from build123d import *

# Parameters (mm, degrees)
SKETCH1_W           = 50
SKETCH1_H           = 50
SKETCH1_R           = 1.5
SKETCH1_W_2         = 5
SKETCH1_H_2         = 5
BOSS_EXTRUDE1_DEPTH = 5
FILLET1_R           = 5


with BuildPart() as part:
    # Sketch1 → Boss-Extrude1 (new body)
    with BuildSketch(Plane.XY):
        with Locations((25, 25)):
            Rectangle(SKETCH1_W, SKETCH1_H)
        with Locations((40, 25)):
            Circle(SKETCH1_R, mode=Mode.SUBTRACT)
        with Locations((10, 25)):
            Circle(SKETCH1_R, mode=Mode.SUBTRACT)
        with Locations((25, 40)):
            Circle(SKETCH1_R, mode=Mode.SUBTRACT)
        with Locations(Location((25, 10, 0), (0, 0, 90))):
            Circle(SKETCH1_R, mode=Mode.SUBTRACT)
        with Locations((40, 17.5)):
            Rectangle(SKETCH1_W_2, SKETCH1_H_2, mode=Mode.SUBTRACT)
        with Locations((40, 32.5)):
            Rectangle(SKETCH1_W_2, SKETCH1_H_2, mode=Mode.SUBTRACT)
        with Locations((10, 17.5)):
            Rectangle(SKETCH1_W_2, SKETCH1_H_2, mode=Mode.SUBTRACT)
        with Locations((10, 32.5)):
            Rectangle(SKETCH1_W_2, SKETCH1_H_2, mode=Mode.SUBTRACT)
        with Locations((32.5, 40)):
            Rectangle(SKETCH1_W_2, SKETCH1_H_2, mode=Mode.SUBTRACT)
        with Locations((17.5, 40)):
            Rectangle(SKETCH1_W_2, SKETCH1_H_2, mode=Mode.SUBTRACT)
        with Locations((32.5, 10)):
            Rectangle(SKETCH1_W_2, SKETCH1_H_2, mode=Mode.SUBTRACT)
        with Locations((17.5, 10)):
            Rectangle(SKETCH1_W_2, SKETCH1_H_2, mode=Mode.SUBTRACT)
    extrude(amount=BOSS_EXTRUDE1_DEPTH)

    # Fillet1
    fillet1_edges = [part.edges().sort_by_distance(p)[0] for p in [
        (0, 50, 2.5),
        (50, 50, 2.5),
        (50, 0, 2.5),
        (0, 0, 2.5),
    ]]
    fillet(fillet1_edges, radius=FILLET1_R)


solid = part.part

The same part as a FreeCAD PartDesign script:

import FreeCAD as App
import Part
import Sketcher

V = App.Vector
Q = App.Units.Quantity


def edges_at(feature, points):
    """Names of the edges that pass closest to the given points."""
    edges = feature.Shape.Edges
    near = lambda p: min(range(len(edges)), key=lambda i: edges[i].distToShape(Part.Vertex(*p))[0])
    return sorted({f"Edge{near(p) + 1}" for p in points})

doc = App.newDocument("Part")
params = doc.addObject("Spreadsheet::Sheet", "Params")
for row, (alias, value) in enumerate([
    ("sketch1_diameter", "3 mm"),
    ("sketch1_width", "50 mm"),
    ("sketch1_width2", "5 mm"),
    ("pad1_length", "5 mm"),
    ("fillet_radius", "5 mm"),
], start=1):
    params.set(f"A{row}", alias)
    params.set(f"B{row}", "=" + value)
    params.setAlias(f"B{row}", alias)

body = doc.addObject("PartDesign::Body", "Body")

# Sketch on XY plane
sketch1 = body.newObject("Sketcher::SketchObject", "Sketch")
sketch1.AttachmentSupport = (doc.getObject("XY_Plane"), [""])
sketch1.MapMode = "FlatFace"
sketch1.addGeometry([
    Part.LineSegment(V(0, 50, 0), V(0, 0, 0)),  # 0
    Part.LineSegment(V(0, 0, 0), V(50, 0, 0)),  # 1
    Part.LineSegment(V(50, 0, 0), V(50, 50, 0)),  # 2
    Part.LineSegment(V(50, 50, 0), V(0, 50, 0)),  # 3
    Part.LineSegment(V(20, 7.5, 0), V(15, 7.5, 0)),  # 4
    Part.LineSegment(V(15, 7.5, 0), V(15, 12.5, 0)),  # 5
    Part.LineSegment(V(15, 12.5, 0), V(20, 12.5, 0)),  # 6
    Part.LineSegment(V(20, 12.5, 0), V(20, 7.5, 0)),  # 7
    Part.LineSegment(V(12.5, 15, 0), V(7.5, 15, 0)),  # 8
    Part.LineSegment(V(7.5, 15, 0), V(7.5, 20, 0)),  # 9
    Part.LineSegment(V(7.5, 20, 0), V(12.5, 20, 0)),  # 10
    Part.LineSegment(V(12.5, 20, 0), V(12.5, 15, 0)),  # 11
    Part.Circle(V(25, 10, 0), V(0, 0, 1), 1.5),  # 12
    Part.LineSegment(V(35, 7.5, 0), V(30, 7.5, 0)),  # 13
    Part.LineSegment(V(30, 7.5, 0), V(30, 12.5, 0)),  # 14
    Part.LineSegment(V(30, 12.5, 0), V(35, 12.5, 0)),  # 15
    Part.LineSegment(V(35, 12.5, 0), V(35, 7.5, 0)),  # 16
    Part.LineSegment(V(42.5, 15, 0), V(37.5, 15, 0)),  # 17
    Part.LineSegment(V(37.5, 15, 0), V(37.5, 20, 0)),  # 18
    Part.LineSegment(V(37.5, 20, 0), V(42.5, 20, 0)),  # 19
    Part.LineSegment(V(42.5, 20, 0), V(42.5, 15, 0)),  # 20
    Part.Circle(V(10, 25, 0), V(0, 0, 1), 1.5),  # 21
    Part.LineSegment(V(12.5, 30, 0), V(7.5, 30, 0)),  # 22
    Part.LineSegment(V(7.5, 30, 0), V(7.5, 35, 0)),  # 23
    Part.LineSegment(V(7.5, 35, 0), V(12.5, 35, 0)),  # 24
    Part.LineSegment(V(12.5, 35, 0), V(12.5, 30, 0)),  # 25
    Part.LineSegment(V(20, 37.5, 0), V(15, 37.5, 0)),  # 26
    Part.LineSegment(V(15, 37.5, 0), V(15, 42.5, 0)),  # 27
    Part.LineSegment(V(15, 42.5, 0), V(20, 42.5, 0)),  # 28
    Part.LineSegment(V(20, 42.5, 0), V(20, 37.5, 0)),  # 29
    Part.Circle(V(40, 25, 0), V(0, 0, 1), 1.5),  # 30
    Part.LineSegment(V(42.5, 30, 0), V(37.5, 30, 0)),  # 31
    Part.LineSegment(V(37.5, 30, 0), V(37.5, 35, 0)),  # 32
    Part.LineSegment(V(37.5, 35, 0), V(42.5, 35, 0)),  # 33
    Part.LineSegment(V(42.5, 35, 0), V(42.5, 30, 0)),  # 34
    Part.Circle(V(25, 40, 0), V(0, 0, 1), 1.5),  # 35
    Part.LineSegment(V(35, 37.5, 0), V(30, 37.5, 0)),  # 36
    Part.LineSegment(V(30, 37.5, 0), V(30, 42.5, 0)),  # 37
    Part.LineSegment(V(30, 42.5, 0), V(35, 42.5, 0)),  # 38
    Part.LineSegment(V(35, 42.5, 0), V(35, 37.5, 0)),  # 39
], False)
sketch1.addConstraint([
    Sketcher.Constraint("Coincident", 0, 2, 1, 1),
    Sketcher.Constraint("Coincident", 1, 2, 2, 1),
    Sketcher.Constraint("Coincident", 2, 2, 3, 1),
    Sketcher.Constraint("Coincident", 3, 2, 0, 1),
    Sketcher.Constraint("Coincident", 4, 2, 5, 1),
    Sketcher.Constraint("Coincident", 5, 2, 6, 1),
    Sketcher.Constraint("Coincident", 6, 2, 7, 1),
    Sketcher.Constraint("Coincident", 7, 2, 4, 1),
    Sketcher.Constraint("Coincident", 8, 2, 9, 1),
    Sketcher.Constraint("Coincident", 9, 2, 10, 1),
    Sketcher.Constraint("Coincident", 10, 2, 11, 1),
    Sketcher.Constraint("Coincident", 11, 2, 8, 1),
    Sketcher.Constraint("Coincident", 13, 2, 14, 1),
    Sketcher.Constraint("Coincident", 14, 2, 15, 1),
    Sketcher.Constraint("Coincident", 15, 2, 16, 1),
    Sketcher.Constraint("Coincident", 16, 2, 13, 1),
    Sketcher.Constraint("Coincident", 17, 2, 18, 1),
    Sketcher.Constraint("Coincident", 18, 2, 19, 1),
    Sketcher.Constraint("Coincident", 19, 2, 20, 1),
    Sketcher.Constraint("Coincident", 20, 2, 17, 1),
    Sketcher.Constraint("Coincident", 22, 2, 23, 1),
    Sketcher.Constraint("Coincident", 23, 2, 24, 1),
    Sketcher.Constraint("Coincident", 24, 2, 25, 1),
    Sketcher.Constraint("Coincident", 25, 2, 22, 1),
    Sketcher.Constraint("Coincident", 26, 2, 27, 1),
    Sketcher.Constraint("Coincident", 27, 2, 28, 1),
    Sketcher.Constraint("Coincident", 28, 2, 29, 1),
    Sketcher.Constraint("Coincident", 29, 2, 26, 1),
    Sketcher.Constraint("Coincident", 31, 2, 32, 1),
    Sketcher.Constraint("Coincident", 32, 2, 33, 1),
    Sketcher.Constraint("Coincident", 33, 2, 34, 1),
    Sketcher.Constraint("Coincident", 34, 2, 31, 1),
    Sketcher.Constraint("Coincident", 36, 2, 37, 1),
    Sketcher.Constraint("Coincident", 37, 2, 38, 1),
    Sketcher.Constraint("Coincident", 38, 2, 39, 1),
    Sketcher.Constraint("Coincident", 39, 2, 36, 1),
    Sketcher.Constraint("Vertical", 0),
    Sketcher.Constraint("Horizontal", 1),
    Sketcher.Constraint("Vertical", 2),
    Sketcher.Constraint("Horizontal", 3),
    Sketcher.Constraint("Horizontal", 4),
    Sketcher.Constraint("Vertical", 5),
    Sketcher.Constraint("Horizontal", 6),
    Sketcher.Constraint("Vertical", 7),
    Sketcher.Constraint("Horizontal", 8),
    Sketcher.Constraint("Vertical", 9),
    Sketcher.Constraint("Horizontal", 10),
    Sketcher.Constraint("Vertical", 11),
    Sketcher.Constraint("Horizontal", 13),
    Sketcher.Constraint("Vertical", 14),
    Sketcher.Constraint("Horizontal", 15),
    Sketcher.Constraint("Vertical", 16),
    Sketcher.Constraint("Horizontal", 17),
    Sketcher.Constraint("Vertical", 18),
    Sketcher.Constraint("Horizontal", 19),
    Sketcher.Constraint("Vertical", 20),
    Sketcher.Constraint("Horizontal", 22),
    Sketcher.Constraint("Vertical", 23),
    Sketcher.Constraint("Horizontal", 24),
    Sketcher.Constraint("Vertical", 25),
    Sketcher.Constraint("Horizontal", 26),
    Sketcher.Constraint("Vertical", 27),
    Sketcher.Constraint("Horizontal", 28),
    Sketcher.Constraint("Vertical", 29),
    Sketcher.Constraint("Horizontal", 31),
    Sketcher.Constraint("Vertical", 32),
    Sketcher.Constraint("Horizontal", 33),
    Sketcher.Constraint("Vertical", 34),
    Sketcher.Constraint("Horizontal", 36),
    Sketcher.Constraint("Vertical", 37),
    Sketcher.Constraint("Horizontal", 38),
    Sketcher.Constraint("Vertical", 39),
    Sketcher.Constraint("Coincident", 0, 2, -1, 1),
    Sketcher.Constraint("Equal", 12, 21),
    Sketcher.Constraint("Equal", 21, 30),
    Sketcher.Constraint("Equal", 30, 35),
    Sketcher.Constraint("Horizontal", 21, 3, 30, 3),
    Sketcher.Constraint("Horizontal", 7, 2, 13, 2),
    Sketcher.Constraint("Horizontal", 6, 2, 14, 2),
    Sketcher.Constraint("Horizontal", 11, 2, 17, 2),
    Sketcher.Constraint("Horizontal", 10, 2, 18, 2),
    Sketcher.Constraint("Horizontal", 25, 2, 31, 2),
    Sketcher.Constraint("Horizontal", 24, 2, 32, 2),
    Sketcher.Constraint("Horizontal", 29, 2, 36, 2),
    Sketcher.Constraint("Horizontal", 28, 2, 37, 2),
    Sketcher.Constraint("Vertical", 12, 3, 35, 3),
    Sketcher.Constraint("Vertical", 9, 2, 22, 2),
    Sketcher.Constraint("Vertical", 11, 2, 24, 2),
    Sketcher.Constraint("Vertical", 5, 2, 26, 2),
    Sketcher.Constraint("Vertical", 7, 2, 28, 2),
    Sketcher.Constraint("Vertical", 18, 2, 31, 2),
    Sketcher.Constraint("Vertical", 20, 2, 33, 2),
    Sketcher.Constraint("Vertical", 14, 2, 36, 2),
    Sketcher.Constraint("Vertical", 16, 2, 38, 2),
    Sketcher.Constraint("Equal", 6, 8),
    Sketcher.Constraint("Equal", 10, 13),
    Sketcher.Constraint("Equal", 15, 17),
    Sketcher.Constraint("Equal", 3, 0),
    Sketcher.Constraint("Equal", 38, 5),
    Sketcher.Constraint("Equal", 7, 9),
    Sketcher.Constraint("Equal", 20, 23),
    Sketcher.Constraint("Equal", 25, 27),
    Sketcher.Constraint("Diameter", 12, Q("3 mm")),
    Sketcher.Constraint("DistanceX", 1, 1, 1, 2, Q("50 mm")),
    Sketcher.Constraint("DistanceX", 4, 2, 4, 1, Q("5 mm")),
    Sketcher.Constraint("DistanceX", -1, 1, 12, 3, Q("25 mm")),
    Sketcher.Constraint("DistanceY", -1, 1, 12, 3, Q("10 mm")),
    Sketcher.Constraint("DistanceX", -1, 1, 21, 3, Q("10 mm")),
    Sketcher.Constraint("DistanceY", -1, 1, 21, 3, Q("25 mm")),
    Sketcher.Constraint("DistanceX", -1, 1, 30, 3, Q("40 mm")),
    Sketcher.Constraint("DistanceY", -1, 1, 35, 3, Q("40 mm")),
    Sketcher.Constraint("DistanceX", -1, 1, 4, 2, Q("15 mm")),
    Sketcher.Constraint("DistanceY", -1, 1, 8, 2, Q("15 mm")),
    Sketcher.Constraint("DistanceX", -1, 1, 13, 2, Q("30 mm")),
    Sketcher.Constraint("DistanceY", -1, 1, 22, 2, Q("30 mm")),
    Sketcher.Constraint("DistanceY", -1, 1, 4, 2, Q("7.5 mm")),
    Sketcher.Constraint("DistanceX", -1, 1, 8, 2, Q("7.5 mm")),
    Sketcher.Constraint("DistanceX", -1, 1, 17, 2, Q("37.5 mm")),
    Sketcher.Constraint("DistanceY", -1, 1, 26, 2, Q("37.5 mm")),
])
sketch1.setExpression("Constraints[102]", "Params.sketch1_diameter")
sketch1.setExpression("Constraints[103]", "Params.sketch1_width")
sketch1.setExpression("Constraints[104]", "Params.sketch1_width2")
pad1 = body.newObject("PartDesign::Pad", "Pad")
pad1.Profile = sketch1
pad1.setExpression("Length", "Params.pad1_length")
doc.recompute()

fillet = body.newObject("PartDesign::Fillet", "Fillet")
fillet.Base = (pad1, edges_at(pad1, [
    (0, 50, 2.5),
    (50, 50, 2.5),
    (50, 0, 2.5),
    (0, 0, 2.5),
]))
fillet.setExpression("Radius", "Params.fillet_radius")

doc.recompute()
